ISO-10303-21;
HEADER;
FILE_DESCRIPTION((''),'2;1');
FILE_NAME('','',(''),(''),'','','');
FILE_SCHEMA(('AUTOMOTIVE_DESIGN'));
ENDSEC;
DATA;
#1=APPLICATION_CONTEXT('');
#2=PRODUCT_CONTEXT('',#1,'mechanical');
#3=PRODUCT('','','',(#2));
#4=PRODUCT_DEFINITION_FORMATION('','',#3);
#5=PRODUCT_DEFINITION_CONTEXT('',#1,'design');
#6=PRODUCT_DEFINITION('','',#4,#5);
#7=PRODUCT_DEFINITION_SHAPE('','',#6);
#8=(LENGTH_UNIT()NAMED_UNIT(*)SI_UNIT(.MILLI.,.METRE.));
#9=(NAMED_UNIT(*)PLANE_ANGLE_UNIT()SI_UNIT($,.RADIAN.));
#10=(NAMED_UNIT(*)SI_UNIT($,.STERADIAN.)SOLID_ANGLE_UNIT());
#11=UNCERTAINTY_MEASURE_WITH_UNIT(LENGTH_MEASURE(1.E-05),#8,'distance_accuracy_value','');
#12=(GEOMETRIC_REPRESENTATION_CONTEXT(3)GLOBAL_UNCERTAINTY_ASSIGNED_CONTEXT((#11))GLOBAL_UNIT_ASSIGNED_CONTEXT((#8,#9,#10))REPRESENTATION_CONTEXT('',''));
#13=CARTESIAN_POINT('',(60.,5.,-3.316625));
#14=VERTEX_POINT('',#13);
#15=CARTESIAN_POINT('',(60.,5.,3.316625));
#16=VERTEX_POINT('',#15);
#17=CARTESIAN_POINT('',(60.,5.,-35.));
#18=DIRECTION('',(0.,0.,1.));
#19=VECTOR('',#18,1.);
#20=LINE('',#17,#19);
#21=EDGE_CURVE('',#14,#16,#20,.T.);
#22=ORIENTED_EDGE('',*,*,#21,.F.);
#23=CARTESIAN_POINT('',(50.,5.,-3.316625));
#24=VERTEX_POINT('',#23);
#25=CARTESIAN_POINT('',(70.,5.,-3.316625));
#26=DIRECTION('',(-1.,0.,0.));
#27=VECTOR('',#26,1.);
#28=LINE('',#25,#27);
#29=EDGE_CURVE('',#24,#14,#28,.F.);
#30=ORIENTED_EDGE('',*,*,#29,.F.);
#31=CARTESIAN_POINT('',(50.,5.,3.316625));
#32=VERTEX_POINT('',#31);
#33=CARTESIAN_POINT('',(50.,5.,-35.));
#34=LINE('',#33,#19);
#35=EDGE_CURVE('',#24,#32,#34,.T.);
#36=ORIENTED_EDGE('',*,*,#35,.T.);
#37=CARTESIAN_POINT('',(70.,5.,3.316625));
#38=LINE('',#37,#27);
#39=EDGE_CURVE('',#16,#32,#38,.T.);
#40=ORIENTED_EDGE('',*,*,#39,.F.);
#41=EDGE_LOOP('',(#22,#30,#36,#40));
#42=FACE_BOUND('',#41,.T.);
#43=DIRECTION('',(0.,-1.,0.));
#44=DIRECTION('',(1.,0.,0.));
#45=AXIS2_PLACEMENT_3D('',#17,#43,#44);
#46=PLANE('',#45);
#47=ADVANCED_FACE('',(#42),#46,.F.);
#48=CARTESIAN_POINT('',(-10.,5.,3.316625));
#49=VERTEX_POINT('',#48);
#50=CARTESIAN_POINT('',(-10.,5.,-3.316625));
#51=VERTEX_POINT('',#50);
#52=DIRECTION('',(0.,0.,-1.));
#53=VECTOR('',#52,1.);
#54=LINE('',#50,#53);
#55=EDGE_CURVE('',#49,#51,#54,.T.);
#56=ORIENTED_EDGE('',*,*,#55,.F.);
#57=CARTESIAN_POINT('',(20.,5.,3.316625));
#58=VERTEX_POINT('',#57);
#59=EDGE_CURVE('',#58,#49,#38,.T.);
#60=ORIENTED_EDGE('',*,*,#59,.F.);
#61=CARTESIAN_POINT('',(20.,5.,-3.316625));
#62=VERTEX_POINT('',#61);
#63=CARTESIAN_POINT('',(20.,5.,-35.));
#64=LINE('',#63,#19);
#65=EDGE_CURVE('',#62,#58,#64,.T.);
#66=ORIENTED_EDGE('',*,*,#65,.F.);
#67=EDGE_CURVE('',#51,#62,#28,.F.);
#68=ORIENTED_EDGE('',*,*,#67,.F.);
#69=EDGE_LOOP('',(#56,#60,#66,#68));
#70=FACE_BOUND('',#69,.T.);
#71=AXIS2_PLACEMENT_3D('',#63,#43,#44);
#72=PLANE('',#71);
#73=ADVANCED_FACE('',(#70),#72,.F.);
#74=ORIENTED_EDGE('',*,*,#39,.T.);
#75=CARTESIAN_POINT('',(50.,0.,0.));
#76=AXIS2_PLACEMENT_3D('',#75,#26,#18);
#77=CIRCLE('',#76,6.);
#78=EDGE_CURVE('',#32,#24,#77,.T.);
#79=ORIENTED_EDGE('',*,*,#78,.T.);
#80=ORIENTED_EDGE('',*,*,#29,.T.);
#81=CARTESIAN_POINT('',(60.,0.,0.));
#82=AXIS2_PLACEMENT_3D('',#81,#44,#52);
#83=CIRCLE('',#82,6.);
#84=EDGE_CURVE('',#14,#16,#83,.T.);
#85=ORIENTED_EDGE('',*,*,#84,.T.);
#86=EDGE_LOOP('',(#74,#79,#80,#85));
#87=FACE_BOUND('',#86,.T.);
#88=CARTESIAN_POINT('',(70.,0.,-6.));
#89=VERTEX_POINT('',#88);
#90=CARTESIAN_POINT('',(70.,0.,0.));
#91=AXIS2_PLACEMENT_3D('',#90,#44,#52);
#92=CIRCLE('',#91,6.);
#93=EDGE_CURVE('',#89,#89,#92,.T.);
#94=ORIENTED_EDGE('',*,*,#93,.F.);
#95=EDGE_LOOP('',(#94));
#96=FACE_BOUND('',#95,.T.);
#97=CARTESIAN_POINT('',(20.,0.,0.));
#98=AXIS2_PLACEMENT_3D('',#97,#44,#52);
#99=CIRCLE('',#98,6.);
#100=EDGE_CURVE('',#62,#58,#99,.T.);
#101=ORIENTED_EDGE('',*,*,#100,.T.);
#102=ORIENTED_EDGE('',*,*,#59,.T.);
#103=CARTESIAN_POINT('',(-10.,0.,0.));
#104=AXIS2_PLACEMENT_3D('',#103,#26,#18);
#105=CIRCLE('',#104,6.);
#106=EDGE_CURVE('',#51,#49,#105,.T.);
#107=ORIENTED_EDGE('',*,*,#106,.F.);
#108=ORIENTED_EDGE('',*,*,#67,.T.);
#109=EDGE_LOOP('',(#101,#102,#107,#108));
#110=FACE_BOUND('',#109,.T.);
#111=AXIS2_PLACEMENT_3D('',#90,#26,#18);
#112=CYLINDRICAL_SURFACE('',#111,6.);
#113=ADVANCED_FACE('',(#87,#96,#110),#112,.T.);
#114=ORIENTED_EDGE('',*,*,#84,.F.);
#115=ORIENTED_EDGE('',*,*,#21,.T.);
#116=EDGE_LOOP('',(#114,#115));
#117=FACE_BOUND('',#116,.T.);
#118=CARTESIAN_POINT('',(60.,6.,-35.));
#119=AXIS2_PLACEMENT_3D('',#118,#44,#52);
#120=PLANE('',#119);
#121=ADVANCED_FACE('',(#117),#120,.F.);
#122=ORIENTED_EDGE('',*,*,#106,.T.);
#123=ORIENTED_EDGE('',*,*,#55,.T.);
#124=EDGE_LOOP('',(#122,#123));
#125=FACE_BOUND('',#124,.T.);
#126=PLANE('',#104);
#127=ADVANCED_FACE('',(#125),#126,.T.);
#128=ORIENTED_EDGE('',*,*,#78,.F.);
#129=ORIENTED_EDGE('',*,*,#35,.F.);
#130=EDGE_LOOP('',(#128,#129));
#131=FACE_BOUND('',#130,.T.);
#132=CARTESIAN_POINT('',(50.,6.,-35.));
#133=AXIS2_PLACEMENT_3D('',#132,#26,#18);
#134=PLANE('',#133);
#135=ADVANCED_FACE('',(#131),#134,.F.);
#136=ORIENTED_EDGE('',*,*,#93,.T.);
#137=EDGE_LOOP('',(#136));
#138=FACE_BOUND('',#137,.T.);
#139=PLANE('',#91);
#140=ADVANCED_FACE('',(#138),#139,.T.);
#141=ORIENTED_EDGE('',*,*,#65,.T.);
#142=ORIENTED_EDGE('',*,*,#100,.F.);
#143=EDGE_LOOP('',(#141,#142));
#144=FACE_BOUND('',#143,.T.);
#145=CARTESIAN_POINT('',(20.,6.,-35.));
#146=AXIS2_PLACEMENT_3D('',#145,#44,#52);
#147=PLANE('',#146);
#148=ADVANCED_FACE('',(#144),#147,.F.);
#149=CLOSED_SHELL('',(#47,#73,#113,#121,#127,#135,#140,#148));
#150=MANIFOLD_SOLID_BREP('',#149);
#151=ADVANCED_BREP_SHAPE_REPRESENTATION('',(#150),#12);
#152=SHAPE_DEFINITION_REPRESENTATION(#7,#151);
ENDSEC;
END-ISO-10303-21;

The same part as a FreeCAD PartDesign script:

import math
import FreeCAD as App
import Part
import Sketcher

doc = App.newDocument("Part")
body = doc.addObject("PartDesign::Body", "Body")

# Sketch on YZ plane
sketch1 = doc.addObject("Sketcher::SketchObject", "Sketch")
body.addObject(sketch1)
sketch1.AttachmentSupport = (doc.YZ_Plane, [""])
sketch1.MapMode = "FlatFace"
sketch1.addGeometry(Part.Circle(App.Vector(0, 0, 0), App.Vector(0, 0, 1), 6), False)
sketch1.addConstraint([
    Sketcher.Constraint("Coincident", 0, 3, -1, 1),
    Sketcher.Constraint("Diameter", 0, 12.0),
])
pad1 = doc.addObject("PartDesign::Pad", "Pad")
body.addObject(pad1)
pad1.Profile = sketch1
pad1.Length = 70

# Sketch on XY plane
sketch2 = doc.addObject("Sketcher::SketchObject", "Sketch001")
body.addObject(sketch2)
sketch2.AttachmentSupport = (doc.XY_Plane, [""])
sketch2.MapMode = "FlatFace"
sketch2.addGeometry([
    Part.LineSegment(App.Vector(50, 6, 0), App.Vector(50, 5, 0)),  # 0
    Part.LineSegment(App.Vector(50, 5, 0), App.Vector(60, 5, 0)),  # 1
    Part.LineSegment(App.Vector(60, 5, 0), App.Vector(60, 6, 0)),  # 2
    Part.LineSegment(App.Vector(60, 6, 0), App.Vector(50, 6, 0)),  # 3
    Part.LineSegment(App.Vector(0, 6, 0), App.Vector(0, 5, 0)),  # 4
    Part.LineSegment(App.Vector(0, 5, 0), App.Vector(20, 5, 0)),  # 5
    Part.LineSegment(App.Vector(20, 5, 0), App.Vector(20, 6, 0)),  # 6
    Part.LineSegment(App.Vector(20, 6, 0), App.Vector(0, 6, 0)),  # 7
], False)
sketch2.addConstraint([
    Sketcher.Constraint("Coincident", 0, 2, 1, 1),
    Sketcher.Constraint("Coincident", 1, 2, 2, 1),
    Sketcher.Constraint("Coincident", 2, 2, 3, 1),
    Sketcher.Constraint("Coincident", 3, 2, 0, 1),
    Sketcher.Constraint("Coincident", 4, 2, 5, 1),
    Sketcher.Constraint("Coincident", 5, 2, 6, 1),
    Sketcher.Constraint("Coincident", 6, 2, 7, 1),
    Sketcher.Constraint("Coincident", 7, 2, 4, 1),
    Sketcher.Constraint("Vertical", 0),
    Sketcher.Constraint("Horizontal", 1),
    Sketcher.Constraint("Vertical", 2),
    Sketcher.Constraint("Horizontal", 3),
    Sketcher.Constraint("Vertical", 4),
    Sketcher.Constraint("Horizontal", 5),
    Sketcher.Constraint("Vertical", 6),
    Sketcher.Constraint("Horizontal", 7),
    Sketcher.Constraint("PointOnObject", 4, 2, -2),
    Sketcher.Constraint("Horizontal", 1, 2, 4, 2),
    Sketcher.Constraint("Horizontal", 3, 2, 6, 2),
    Sketcher.Constraint("DistanceX", 1, 1, 1, 2, 10.0),
    Sketcher.Constraint("DistanceX", 5, 1, 5, 2, 20.0),
    Sketcher.Constraint("DistanceY", 0, 2, 0, 1, 1.0),
    Sketcher.Constraint("DistanceX", -1, 1, 0, 2, 50.0),
    Sketcher.Constraint("DistanceY", -1, 1, 0, 2, 5.0),
])
pocket1 = doc.addObject("PartDesign::Pocket", "Pocket")
body.addObject(pocket1)
pocket1.Profile = sketch2
pocket1.Length = 70
pocket1.Midplane = True

# Sketch on YZ plane
sketch3 = doc.addObject("Sketcher::SketchObject", "Sketch002")
body.addObject(sketch3)
sketch3.AttachmentSupport = (doc.YZ_Plane, [""])
sketch3.MapMode = "FlatFace"
sketch3.addGeometry([
    Part.LineSegment(App.Vector(5, 3, 0), App.Vector(5, -3, 0)),
    Part.ArcOfCircle(Part.Circle(App.Vector(0, 0, 0), App.Vector(0, 0, 1), 6), math.radians(34), math.radians(326)),
], False)
sketch3.addConstraint([
    Sketcher.Constraint("Coincident", 0, 1, 1, 1),
    Sketcher.Constraint("Coincident", 1, 2, 0, 2),
    Sketcher.Constraint("Vertical", 0),
    Sketcher.Constraint("Coincident", 1, 3, -1, 1),
    Sketcher.Constraint("Radius", 1, 6.0),
    Sketcher.Constraint("DistanceX", -1, 1, 0, 1, 5.0),
])
pad2 = doc.addObject("PartDesign::Pad", "Pad001")
body.addObject(pad2)
pad2.Profile = sketch3
pad2.Length = 10
pad2.Reversed = True

doc.recompute()
